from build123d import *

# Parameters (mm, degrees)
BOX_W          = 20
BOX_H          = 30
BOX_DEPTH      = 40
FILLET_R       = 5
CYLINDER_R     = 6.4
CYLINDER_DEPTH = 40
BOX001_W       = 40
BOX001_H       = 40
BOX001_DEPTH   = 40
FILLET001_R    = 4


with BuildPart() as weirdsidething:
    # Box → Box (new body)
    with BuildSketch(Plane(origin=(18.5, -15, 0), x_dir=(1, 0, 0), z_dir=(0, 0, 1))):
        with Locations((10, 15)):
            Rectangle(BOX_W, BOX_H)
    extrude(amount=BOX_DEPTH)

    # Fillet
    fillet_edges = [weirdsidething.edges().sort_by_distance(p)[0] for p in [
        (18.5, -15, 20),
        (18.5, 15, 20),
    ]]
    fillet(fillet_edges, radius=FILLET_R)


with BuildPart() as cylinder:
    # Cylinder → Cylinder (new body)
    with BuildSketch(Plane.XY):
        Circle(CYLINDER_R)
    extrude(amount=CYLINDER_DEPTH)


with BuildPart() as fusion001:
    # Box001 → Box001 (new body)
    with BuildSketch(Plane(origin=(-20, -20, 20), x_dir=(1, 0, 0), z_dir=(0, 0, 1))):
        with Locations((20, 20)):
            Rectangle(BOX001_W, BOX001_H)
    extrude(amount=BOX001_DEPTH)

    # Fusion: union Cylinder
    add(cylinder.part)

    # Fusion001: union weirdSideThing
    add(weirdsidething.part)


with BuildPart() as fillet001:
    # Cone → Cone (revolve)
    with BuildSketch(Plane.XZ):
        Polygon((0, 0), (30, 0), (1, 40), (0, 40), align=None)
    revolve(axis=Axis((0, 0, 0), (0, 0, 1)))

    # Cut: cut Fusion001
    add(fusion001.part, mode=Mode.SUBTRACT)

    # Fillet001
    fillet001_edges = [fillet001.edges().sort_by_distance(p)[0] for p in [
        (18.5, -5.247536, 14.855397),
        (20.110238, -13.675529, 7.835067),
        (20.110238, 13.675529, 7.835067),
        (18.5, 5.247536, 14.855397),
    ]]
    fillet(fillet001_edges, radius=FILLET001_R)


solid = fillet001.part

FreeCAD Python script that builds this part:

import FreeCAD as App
import Part
import Sketcher

V = App.Vector


def edges_at(feature, points):
    """Names of the edges that pass closest to the given points."""
    edges = feature.Shape.Edges
    near = lambda p: min(range(len(edges)), key=lambda i: edges[i].distToShape(Part.Vertex(*p))[0])
    return sorted({f"Edge{near(p) + 1}" for p in points})

doc = App.newDocument("Part")
params = doc.addObject("Spreadsheet::Sheet", "Params")
for row, (alias, value) in enumerate([
    ("sketch1_width", "20 mm"),
    ("sketch1_height", "30 mm"),
    ("pad1_length", "40 mm"),
    ("fillet_radius", "5 mm"),
    ("sketch2_diameter", "12.8 mm"),
    ("pad2_length", "40 mm"),
    ("sketch3_width", "40 mm"),
    ("pad3_length", "40 mm"),
    ("sketch4_width", "30 mm"),
    ("sketch4_width2", "1 mm"),
    ("sketch4_height", "40 mm"),
    ("revolution_angle", "360 deg"),
    ("fillet2_radius", "4 mm"),
], start=1):
    params.set(f"A{row}", alias)
    params.set(f"B{row}", "=" + value)
    params.setAlias(f"B{row}", alias)

body = doc.addObject("PartDesign::Body", "Body")

# Sketch on XY plane
sketch1 = body.newObject("Sketcher::SketchObject", "Sketch")
sketch1.AttachmentSupport = (doc.getObject("XY_Plane"), [""])
sketch1.MapMode = "FlatFace"
sketch1.addGeometry([
    Part.LineSegment(V(18, 15, 0), V(18, -15, 0)),
    Part.LineSegment(V(18, -15, 0), V(38, -15, 0)),
    Part.LineSegment(V(38, -15, 0), V(38, 15, 0)),
    Part.LineSegment(V(38, 15, 0), V(18, 15, 0)),
], False)
sketch1.addConstraint([
    Sketcher.Constraint("Coincident", 0, 2, 1, 1),
    Sketcher.Constraint("Coincident", 1, 2, 2, 1),
    Sketcher.Constraint("Coincident", 2, 2, 3, 1),
    Sketcher.Constraint("Coincident", 3, 2, 0, 1),
    Sketcher.Constraint("Vertical", 0),
    Sketcher.Constraint("Horizontal", 1),
    Sketcher.Constraint("Vertical", 2),
    Sketcher.Constraint("Horizontal", 3),
    Sketcher.Constraint("DistanceX", 1, 1, 1, 2, 20.0),
    Sketcher.Constraint("DistanceY", 0, 2, 0, 1, 30.0),
    Sketcher.Constraint("DistanceY", 0, 2, -1, 1, 15.0),
    Sketcher.Constraint("DistanceX", -1, 1, 0, 2, 18.5),
])
sketch1.setExpression("Constraints[8]", "Params.sketch1_width")
sketch1.setExpression("Constraints[9]", "Params.sketch1_height")
pad1 = body.newObject("PartDesign::Pad", "Pad")
pad1.Profile = sketch1
pad1.setExpression("Length", "Params.pad1_length")
doc.recompute()

fillet = body.newObject("PartDesign::Fillet", "Fillet")
fillet.Base = (pad1, edges_at(pad1, [(18.5, -15, 20), (18.5, 15, 20)]))
fillet.setExpression("Radius", "Params.fillet_radius")
body2 = doc.addObject("PartDesign::Body", "Body001")

# Sketch on XY plane
sketch2 = body2.newObject("Sketcher::SketchObject", "Sketch001")
sketch2.AttachmentSupport = (doc.getObject("XY_Plane001"), [""])
sketch2.MapMode = "FlatFace"
sketch2.addGeometry(Part.Circle(V(0, 0, 0), V(0, 0, 1), 6), False)
sketch2.addConstraint([
    Sketcher.Constraint("Coincident", 0, 3, -1, 1),
    Sketcher.Constraint("Diameter", 0, 12.8),
])
sketch2.setExpression("Constraints[1]", "Params.sketch2_diameter")
pad2 = body2.newObject("PartDesign::Pad", "Pad001")
pad2.Profile = sketch2
pad2.setExpression("Length", "Params.pad2_length")
body3 = doc.addObject("PartDesign::Body", "Body002")

# Sketch on XY plane
sketch3 = body3.newObject("Sketcher::SketchObject", "Sketch002")
sketch3.AttachmentSupport = (doc.getObject("XY_Plane002"), [""])
sketch3.MapMode = "FlatFace"
sketch3.AttachmentOffset = App.Placement(V(0, 0, 20), App.Rotation())
sketch3.addGeometry([
    Part.LineSegment(V(-20, 20, 0), V(-20, -20, 0)),
    Part.LineSegment(V(-20, -20, 0), V(20, -20, 0)),
    Part.LineSegment(V(20, -20, 0), V(20, 20, 0)),
    Part.LineSegment(V(20, 20, 0), V(-20, 20, 0)),
], False)
sketch3.addConstraint([
    Sketcher.Constraint("Coincident", 0, 2, 1, 1),
    Sketcher.Constraint("Coincident", 1, 2, 2, 1),
    Sketcher.Constraint("Coincident", 2, 2, 3, 1),
    Sketcher.Constraint("Coincident", 3, 2, 0, 1),
    Sketcher.Constraint("Vertical", 0),
    Sketcher.Constraint("Horizontal", 1),
    Sketcher.Constraint("Vertical", 2),
    Sketcher.Constraint("Horizontal", 3),
    Sketcher.Constraint("Symmetric", 0, 2, 2, 2, -1, 1),
    Sketcher.Constraint("Equal", 3, 0),
    Sketcher.Constraint("DistanceX", 1, 1, 1, 2, 40.0),
])
sketch3.setExpression("Constraints[10]", "Params.sketch3_width")
pad3 = body3.newObject("PartDesign::Pad", "Pad002")
pad3.Profile = sketch3
pad3.setExpression("Length", "Params.pad3_length")
doc.recompute()

boolean = body3.newObject("PartDesign::Boolean", "Boolean")
boolean.Type = "Fuse"
boolean.addObjects([body2])
doc.recompute()

boolean2 = body3.newObject("PartDesign::Boolean", "Boolean001")
boolean2.Type = "Fuse"
boolean2.addObjects([body])
body4 = doc.addObject("PartDesign::Body", "Body003")

# Sketch on XZ plane
sketch4 = body4.newObject("Sketcher::SketchObject", "Sketch003")
sketch4.AttachmentSupport = (doc.getObject("XZ_Plane003"), [""])
sketch4.MapMode = "FlatFace"
sketch4.addGeometry([
    Part.LineSegment(V(0, 0, 0), V(30, 0, 0)),
    Part.LineSegment(V(30, 0, 0), V(1, 40, 0)),
    Part.LineSegment(V(1, 40, 0), V(0, 40, 0)),
    Part.LineSegment(V(0, 40, 0), V(0, 0, 0)),
], False)
sketch4.addConstraint([
    Sketcher.Constraint("Coincident", 0, 2, 1, 1),
    Sketcher.Constraint("Coincident", 1, 2, 2, 1),
    Sketcher.Constraint("Coincident", 2, 2, 3, 1),
    Sketcher.Constraint("Coincident", 3, 2, 0, 1),
    Sketcher.Constraint("Horizontal", 0),
    Sketcher.Constraint("Horizontal", 2),
    Sketcher.Constraint("Vertical", 3),
    Sketcher.Constraint("Coincident", 3, 2, -1, 1),
    Sketcher.Constraint("DistanceX", 0, 1, 0, 2, 30.0),
    Sketcher.Constraint("DistanceX", 2, 2, 2, 1, 1.0),
    Sketcher.Constraint("DistanceY", 3, 2, 3, 1, 40.0),
])
sketch4.setExpression("Constraints[8]", "Params.sketch4_width")
sketch4.setExpression("Constraints[9]", "Params.sketch4_width2")
sketch4.setExpression("Constraints[10]", "Params.sketch4_height")
revolution = body4.newObject("PartDesign::Revolution", "Revolution")
revolution.Profile = sketch4
revolution.ReferenceAxis = (sketch4, ["V_Axis"])
revolution.setExpression("Angle", "Params.revolution_angle")
doc.recompute()

boolean3 = body4.newObject("PartDesign::Boolean", "Boolean002")
boolean3.Type = "Cut"
boolean3.addObjects([body3])
doc.recompute()

fillet2 = body4.newObject("PartDesign::Fillet", "Fillet001")
fillet2.Base = (boolean3, edges_at(boolean3, [
    (18.5, -5.248, 14.855),
    (20.11, -13.676, 7.835),
    (20.11, 13.676, 7.835),
    (18.5, 5.248, 14.855),
]))
fillet2.setExpression("Radius", "Params.fillet2_radius")

doc.recompute()
